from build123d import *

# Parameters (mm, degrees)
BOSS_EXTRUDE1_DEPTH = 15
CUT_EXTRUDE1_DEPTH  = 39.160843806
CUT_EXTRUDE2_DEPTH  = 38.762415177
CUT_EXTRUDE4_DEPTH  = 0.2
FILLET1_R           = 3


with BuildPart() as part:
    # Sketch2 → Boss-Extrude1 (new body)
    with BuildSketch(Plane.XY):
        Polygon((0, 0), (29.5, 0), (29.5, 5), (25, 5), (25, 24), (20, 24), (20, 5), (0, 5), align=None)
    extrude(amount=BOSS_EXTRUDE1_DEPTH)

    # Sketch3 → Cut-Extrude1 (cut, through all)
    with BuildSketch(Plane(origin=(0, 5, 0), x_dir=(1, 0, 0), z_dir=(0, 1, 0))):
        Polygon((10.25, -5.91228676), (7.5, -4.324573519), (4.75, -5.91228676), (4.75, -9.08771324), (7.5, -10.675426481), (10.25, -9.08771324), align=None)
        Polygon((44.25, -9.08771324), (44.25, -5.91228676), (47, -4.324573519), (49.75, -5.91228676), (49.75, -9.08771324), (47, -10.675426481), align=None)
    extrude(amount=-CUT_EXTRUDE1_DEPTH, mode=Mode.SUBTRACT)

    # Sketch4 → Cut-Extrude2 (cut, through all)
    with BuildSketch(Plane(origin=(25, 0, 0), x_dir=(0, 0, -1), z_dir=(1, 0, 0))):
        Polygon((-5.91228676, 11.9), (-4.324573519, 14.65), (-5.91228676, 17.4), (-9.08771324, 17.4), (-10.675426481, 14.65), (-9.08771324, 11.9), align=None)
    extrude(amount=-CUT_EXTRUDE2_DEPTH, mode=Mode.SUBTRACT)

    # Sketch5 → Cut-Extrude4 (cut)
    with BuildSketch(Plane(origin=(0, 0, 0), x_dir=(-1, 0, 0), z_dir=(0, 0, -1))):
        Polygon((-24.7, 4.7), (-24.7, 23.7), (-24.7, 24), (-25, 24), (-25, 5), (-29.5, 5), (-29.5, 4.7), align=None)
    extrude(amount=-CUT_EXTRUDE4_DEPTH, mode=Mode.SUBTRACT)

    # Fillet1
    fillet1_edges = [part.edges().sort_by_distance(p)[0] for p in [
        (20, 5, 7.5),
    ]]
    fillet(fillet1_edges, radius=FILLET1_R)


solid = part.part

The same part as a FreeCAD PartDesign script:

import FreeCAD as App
import Part
import Sketcher

V = App.Vector
Q = App.Units.Quantity


def edges_at(feature, points):
    """Names of the edges that pass closest to the given points."""
    edges = feature.Shape.Edges
    near = lambda p: min(range(len(edges)), key=lambda i: edges[i].distToShape(Part.Vertex(*p))[0])
    return sorted({f"Edge{near(p) + 1}" for p in points})


def add_polygon(sketch, points):
    """Adds a closed chain of lines whose ends are joined by coincident constraints."""
    first, n = sketch.GeometryCount, len(points)
    for a, b in zip(points, points[1:] + points[:1]):
        sketch.addGeometry(Part.LineSegment(App.Vector(*a, 0), App.Vector(*b, 0)), False)
    for i in range(n):
        sketch.addConstraint(Sketcher.Constraint("Coincident", first + i, 2, first + (i + 1) % n, 1))

doc = App.newDocument("Part")
params = doc.addObject("Spreadsheet::Sheet", "Params")
for row, (alias, value) in enumerate([
    ("sketch1_width", "5 mm"),
    ("sketch1_width2", "20 mm"),
    ("sketch1_height", "19 mm"),
    ("sketch1_width3", "29.5 mm"),
    ("pad1_length", "15 mm"),
    ("sketch4_height", "19 mm"),
    ("sketch4_width", "0.3 mm"),
    ("sketch4_width2", "4.5 mm"),
    ("pocket3_length", "0.2 mm"),
    ("fillet_radius", "3 mm"),
], start=1):
    params.set(f"A{row}", alias)
    params.set(f"B{row}", "=" + value)
    params.setAlias(f"B{row}", alias)

body = doc.addObject("PartDesign::Body", "Body")

sketch1 = body.newObject("Sketcher::SketchObject", "Sketch")
sketch1.AttachmentSupport = (doc.getObject("XY_Plane"), [""])
sketch1.MapMode = "FlatFace"
add_polygon(sketch1, [(0, 0), (29.5, 0), (29.5, 5), (25, 5), (25, 24), (20, 24), (20, 5), (0, 5)])
sketch1.addConstraint([
    Sketcher.Constraint("Horizontal", 0),
    Sketcher.Constraint("Vertical", 1),
    Sketcher.Constraint("Horizontal", 2),
    Sketcher.Constraint("Vertical", 3),
    Sketcher.Constraint("Horizontal", 4),
    Sketcher.Constraint("Vertical", 5),
    Sketcher.Constraint("Horizontal", 6),
    Sketcher.Constraint("Vertical", 7),
    Sketcher.Constraint("Coincident", 7, 2, -1, 1),
    Sketcher.Constraint("Horizontal", 2, 2, 5, 2),
    Sketcher.Constraint("Equal", 4, 1),
    Sketcher.Constraint("DistanceX", 4, 2, 4, 1, 5.0),
    Sketcher.Constraint("DistanceX", 6, 2, 6, 1, 20.0),
    Sketcher.Constraint("DistanceY", 3, 1, 3, 2, 19.0),
    Sketcher.Constraint("DistanceX", 0, 1, 0, 2, 29.5),
])
sketch1.setExpression("Constraints[19]", "Params.sketch1_width")
sketch1.setExpression("Constraints[20]", "Params.sketch1_width2")
sketch1.setExpression("Constraints[21]", "Params.sketch1_height")
sketch1.setExpression("Constraints[22]", "Params.sketch1_width3")
pad1 = body.newObject("PartDesign::Pad", "Pad")
pad1.Profile = sketch1
pad1.setExpression("Length", "Params.pad1_length")

sketch2 = body.newObject("Sketcher::SketchObject", "Sketch001")
sketch2.AttachmentSupport = (doc.getObject("XZ_Plane"), [""])
sketch2.MapMode = "FlatFace"
sketch2.AttachmentOffset = App.Placement(V(0, 0, -5), App.Rotation())
add_polygon(sketch2, [(10.2, 5.9), (7.5, 4.3), (4.8, 5.9), (4.8, 9.1), (7.5, 10.7), (10.2, 9.1)])
add_polygon(sketch2, [(44.2, 5.9), (44.2, 9.1), (47, 10.7), (49.8, 9.1), (49.8, 5.9), (47, 4.3)])
sketch2.addConstraint([
    Sketcher.Constraint("Vertical", 2),
    Sketcher.Constraint("Vertical", 5),
    Sketcher.Constraint("Vertical", 6),
    Sketcher.Constraint("Vertical", 9),
    Sketcher.Constraint("Parallel", 0, 3),
    Sketcher.Constraint("Parallel", 1, 4),
    Sketcher.Constraint("Parallel", 3, 7),
    Sketcher.Constraint("Parallel", 4, 8),
    Sketcher.Constraint("Parallel", 7, 10),
    Sketcher.Constraint("Parallel", 8, 11),
    Sketcher.Constraint("Horizontal", 2, 2, 4, 2),
    Sketcher.Constraint("Horizontal", 1, 2, 5, 2),
    Sketcher.Constraint("Horizontal", 4, 2, 6, 2),
    Sketcher.Constraint("Horizontal", 3, 2, 7, 2),
    Sketcher.Constraint("Horizontal", 6, 2, 8, 2),
    Sketcher.Constraint("Horizontal", 5, 2, 9, 2),
    Sketcher.Constraint("Horizontal", 0, 2, 10, 2),
    Sketcher.Constraint("Vertical", 0, 2, 3, 2),
    Sketcher.Constraint("Angle", 0, Q("-150 deg")),
    Sketcher.Constraint("DistanceX", -1, 1, 7, 2, 47.0),
    Sketcher.Constraint("DistanceX", 4, 2, 6, 2, 34.0),
    Sketcher.Constraint("DistanceX", -1, 1, 0, 2, 7.5),
    Sketcher.Constraint("DistanceY", 2, 1, 2, 2, 3.175426),
    Sketcher.Constraint("DistanceY", -1, 1, 0, 2, 4.324574),
])
pocket1 = body.newObject("PartDesign::Pocket", "Pocket")
pocket1.Profile = sketch2
pocket1.Type = "ThroughAll"
pocket1.Reversed = True

sketch3 = body.newObject("Sketcher::SketchObject", "Sketch002")
sketch3.AttachmentSupport = (doc.getObject("YZ_Plane"), [""])
sketch3.MapMode = "FlatFace"
sketch3.AttachmentOffset = App.Placement(V(0, 0, 25), App.Rotation())
add_polygon(sketch3, [(11.9, 5.9), (14.7, 4.3), (17.4, 5.9), (17.4, 9.1), (14.7, 10.7), (11.9, 9.1)])
sketch3.addConstraint([
    Sketcher.Constraint("Vertical", 2),
    Sketcher.Constraint("Vertical", 5),
    Sketcher.Constraint("Parallel", 0, 3),
    Sketcher.Constraint("Parallel", 1, 4),
    Sketcher.Constraint("Horizontal", 2, 2, 4, 2),
    Sketcher.Constraint("Horizontal", 1, 2, 5, 2),
    Sketcher.Constraint("Vertical", 0, 2, 3, 2),
    Sketcher.Constraint("Angle", 0, Q("-30 deg")),
    Sketcher.Constraint("DistanceX", -1, 1, 1, 2, 17.4),
    Sketcher.Constraint("DistanceX", -1, 1, 4, 2, 11.9),
    Sketcher.Constraint("DistanceY", 2, 1, 2, 2, 3.175426),
    Sketcher.Constraint("DistanceY", -1, 1, 0, 2, 4.324574),
])
pocket2 = body.newObject("PartDesign::Pocket", "Pocket001")
pocket2.Profile = sketch3
pocket2.Type = "ThroughAll"

sketch4 = body.newObject("Sketcher::SketchObject", "Sketch003")
sketch4.AttachmentSupport = (doc.getObject("XY_Plane"), [""])
sketch4.MapMode = "FlatFace"
add_polygon(sketch4, [(24.7, 4.7), (24.7, 24), (25, 24), (25, 5), (29.5, 5), (29.5, 4.7)])
sketch4.addConstraint([
    Sketcher.Constraint("Vertical", 0),
    Sketcher.Constraint("Horizontal", 1),
    Sketcher.Constraint("Vertical", 2),
    Sketcher.Constraint("Horizontal", 3),
    Sketcher.Constraint("Vertical", 4),
    Sketcher.Constraint("Horizontal", 5),
    Sketcher.Constraint("Equal", 1, 4),
    Sketcher.Constraint("DistanceY", 2, 2, 2, 1, 19.0),
    Sketcher.Constraint("DistanceX", 1, 1, 1, 2, 0.3),
    Sketcher.Constraint("DistanceX", 3, 1, 3, 2, 4.5),
    Sketcher.Constraint("DistanceY", -1, 1, 0, 2, 24.0),
    Sketcher.Constraint("DistanceX", -1, 1, 1, 2, 25.0),
])
sketch4.setExpression("Constraints[13]", "Params.sketch4_height")
sketch4.setExpression("Constraints[14]", "Params.sketch4_width")
sketch4.setExpression("Constraints[15]", "Params.sketch4_width2")
pocket3 = body.newObject("PartDesign::Pocket", "Pocket002")
pocket3.Profile = sketch4
pocket3.setExpression("Length", "Params.pocket3_length")
pocket3.Reversed = True
doc.recompute()

fillet = body.newObject("PartDesign::Fillet", "Fillet")
fillet.Base = (pocket3, edges_at(pocket3, [(20, 5, 7.5)]))
fillet.setExpression("Radius", "Params.fillet_radius")

doc.recompute()
